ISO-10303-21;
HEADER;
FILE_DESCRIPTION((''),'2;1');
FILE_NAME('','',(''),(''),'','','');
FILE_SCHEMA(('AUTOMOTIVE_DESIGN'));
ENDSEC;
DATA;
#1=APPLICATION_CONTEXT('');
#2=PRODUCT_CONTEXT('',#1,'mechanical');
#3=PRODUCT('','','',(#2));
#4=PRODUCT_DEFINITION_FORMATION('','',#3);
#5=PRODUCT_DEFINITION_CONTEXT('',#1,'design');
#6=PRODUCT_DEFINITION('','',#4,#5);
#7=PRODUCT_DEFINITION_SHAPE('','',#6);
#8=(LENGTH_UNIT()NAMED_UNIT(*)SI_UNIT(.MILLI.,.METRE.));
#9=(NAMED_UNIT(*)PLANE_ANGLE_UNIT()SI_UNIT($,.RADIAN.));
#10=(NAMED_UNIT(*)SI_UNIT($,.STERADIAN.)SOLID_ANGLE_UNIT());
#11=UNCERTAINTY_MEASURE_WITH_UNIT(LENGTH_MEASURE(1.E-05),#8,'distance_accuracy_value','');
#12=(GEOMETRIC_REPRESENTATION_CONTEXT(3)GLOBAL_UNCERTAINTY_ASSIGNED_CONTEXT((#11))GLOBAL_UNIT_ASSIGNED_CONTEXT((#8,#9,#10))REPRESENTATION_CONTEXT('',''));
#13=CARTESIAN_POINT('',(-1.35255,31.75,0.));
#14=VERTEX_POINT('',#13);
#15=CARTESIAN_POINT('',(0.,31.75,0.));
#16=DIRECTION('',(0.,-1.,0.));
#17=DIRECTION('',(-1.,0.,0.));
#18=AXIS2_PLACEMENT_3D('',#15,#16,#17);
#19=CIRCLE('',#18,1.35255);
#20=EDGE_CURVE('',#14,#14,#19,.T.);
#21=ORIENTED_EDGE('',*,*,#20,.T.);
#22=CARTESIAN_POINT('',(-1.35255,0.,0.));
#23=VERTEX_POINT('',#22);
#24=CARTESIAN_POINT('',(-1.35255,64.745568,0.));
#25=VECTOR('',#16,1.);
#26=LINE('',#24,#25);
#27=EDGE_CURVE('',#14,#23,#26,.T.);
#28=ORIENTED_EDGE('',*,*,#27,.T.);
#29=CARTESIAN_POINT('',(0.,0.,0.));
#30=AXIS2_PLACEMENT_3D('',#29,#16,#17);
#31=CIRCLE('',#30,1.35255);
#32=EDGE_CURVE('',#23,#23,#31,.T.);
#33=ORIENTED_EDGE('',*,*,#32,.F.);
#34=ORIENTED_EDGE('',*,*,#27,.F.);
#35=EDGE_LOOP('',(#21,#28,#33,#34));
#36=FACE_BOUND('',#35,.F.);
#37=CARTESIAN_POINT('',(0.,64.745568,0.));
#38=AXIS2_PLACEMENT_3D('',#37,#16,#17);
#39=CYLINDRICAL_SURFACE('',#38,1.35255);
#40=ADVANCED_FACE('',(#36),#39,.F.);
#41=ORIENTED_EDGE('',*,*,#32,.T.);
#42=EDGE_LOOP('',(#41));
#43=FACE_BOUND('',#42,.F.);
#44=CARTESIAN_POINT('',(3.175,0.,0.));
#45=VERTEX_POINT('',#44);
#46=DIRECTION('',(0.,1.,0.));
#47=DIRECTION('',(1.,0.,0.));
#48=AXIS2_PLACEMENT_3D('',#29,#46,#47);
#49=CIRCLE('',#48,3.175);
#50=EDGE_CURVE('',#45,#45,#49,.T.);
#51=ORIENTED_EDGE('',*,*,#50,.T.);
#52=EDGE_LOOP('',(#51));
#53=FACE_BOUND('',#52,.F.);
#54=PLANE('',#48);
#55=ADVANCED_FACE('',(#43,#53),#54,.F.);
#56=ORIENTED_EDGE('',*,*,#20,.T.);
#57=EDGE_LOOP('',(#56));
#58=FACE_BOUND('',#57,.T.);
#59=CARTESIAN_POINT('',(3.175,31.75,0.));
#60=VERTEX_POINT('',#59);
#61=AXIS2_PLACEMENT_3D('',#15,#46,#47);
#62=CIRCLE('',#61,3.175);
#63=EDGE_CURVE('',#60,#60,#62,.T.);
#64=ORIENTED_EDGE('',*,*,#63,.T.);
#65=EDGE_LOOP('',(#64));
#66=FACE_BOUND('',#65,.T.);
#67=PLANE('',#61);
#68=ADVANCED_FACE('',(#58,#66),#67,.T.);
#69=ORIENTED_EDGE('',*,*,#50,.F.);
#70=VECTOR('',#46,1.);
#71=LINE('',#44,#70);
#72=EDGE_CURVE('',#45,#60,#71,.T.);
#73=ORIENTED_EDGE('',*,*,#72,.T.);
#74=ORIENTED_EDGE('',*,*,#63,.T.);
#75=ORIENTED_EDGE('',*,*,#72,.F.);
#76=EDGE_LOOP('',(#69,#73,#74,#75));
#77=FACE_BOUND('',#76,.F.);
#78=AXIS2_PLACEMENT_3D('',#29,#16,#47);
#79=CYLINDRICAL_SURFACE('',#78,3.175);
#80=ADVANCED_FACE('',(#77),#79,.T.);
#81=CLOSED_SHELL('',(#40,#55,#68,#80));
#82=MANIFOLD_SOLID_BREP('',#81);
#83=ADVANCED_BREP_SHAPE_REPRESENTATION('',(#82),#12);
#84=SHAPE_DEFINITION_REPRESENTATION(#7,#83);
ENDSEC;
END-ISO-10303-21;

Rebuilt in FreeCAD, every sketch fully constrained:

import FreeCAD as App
import Part
import Sketcher
from FreeCAD import Vector
Q = App.Units.Quantity

doc = App.newDocument("Part")
body = doc.addObject("PartDesign::Body", "Body")

sketch1 = doc.addObject("Sketcher::SketchObject", "Sketch")
body.addObject(sketch1)
sketch1.AttachmentSupport = (doc.XZ_Plane, [""])
sketch1.MapMode = "FlatFace"
sketch1.addGeometry(Part.Circle(Vector(0, 0, 0), Vector(0, 0, 1), 3.2), False)
sketch1.addConstraint(Sketcher.Constraint("Coincident", 0, 3, -1, 1))
sketch1.addConstraint(Sketcher.Constraint("Diameter", 0, Q("0.25 in")))
pad1 = doc.addObject("PartDesign::Pad", "Pad")
body.addObject(pad1)
pad1.Profile = sketch1
pad1.Length = Q("1.25 in")
pad1.Reversed = True

sketch2 = doc.addObject("Sketcher::SketchObject", "Sketch001")
body.addObject(sketch2)
sketch2.AttachmentSupport = (doc.XZ_Plane, [""])
sketch2.MapMode = "FlatFace"
sketch2.AttachmentOffset = App.Placement(Vector(0, 0, -1.25 * 25.4), App.Rotation())
sketch2.addGeometry(Part.Circle(Vector(0, 0, 0), Vector(0, 0, 1), 1.4), False)
sketch2.addConstraint(Sketcher.Constraint("Coincident", 0, 3, -1, 1))
sketch2.addConstraint(Sketcher.Constraint("Diameter", 0, Q("0.1065 in")))
doc.recompute()
hole = doc.addObject("PartDesign::Hole", "Hole")
body.addObject(hole)
hole.Profile = sketch2
hole.ThreadType = "None"
hole.Diameter = Q("0.1065 in")
hole.DepthType = "ThroughAll"
hole.Reversed = True

doc.recompute()
